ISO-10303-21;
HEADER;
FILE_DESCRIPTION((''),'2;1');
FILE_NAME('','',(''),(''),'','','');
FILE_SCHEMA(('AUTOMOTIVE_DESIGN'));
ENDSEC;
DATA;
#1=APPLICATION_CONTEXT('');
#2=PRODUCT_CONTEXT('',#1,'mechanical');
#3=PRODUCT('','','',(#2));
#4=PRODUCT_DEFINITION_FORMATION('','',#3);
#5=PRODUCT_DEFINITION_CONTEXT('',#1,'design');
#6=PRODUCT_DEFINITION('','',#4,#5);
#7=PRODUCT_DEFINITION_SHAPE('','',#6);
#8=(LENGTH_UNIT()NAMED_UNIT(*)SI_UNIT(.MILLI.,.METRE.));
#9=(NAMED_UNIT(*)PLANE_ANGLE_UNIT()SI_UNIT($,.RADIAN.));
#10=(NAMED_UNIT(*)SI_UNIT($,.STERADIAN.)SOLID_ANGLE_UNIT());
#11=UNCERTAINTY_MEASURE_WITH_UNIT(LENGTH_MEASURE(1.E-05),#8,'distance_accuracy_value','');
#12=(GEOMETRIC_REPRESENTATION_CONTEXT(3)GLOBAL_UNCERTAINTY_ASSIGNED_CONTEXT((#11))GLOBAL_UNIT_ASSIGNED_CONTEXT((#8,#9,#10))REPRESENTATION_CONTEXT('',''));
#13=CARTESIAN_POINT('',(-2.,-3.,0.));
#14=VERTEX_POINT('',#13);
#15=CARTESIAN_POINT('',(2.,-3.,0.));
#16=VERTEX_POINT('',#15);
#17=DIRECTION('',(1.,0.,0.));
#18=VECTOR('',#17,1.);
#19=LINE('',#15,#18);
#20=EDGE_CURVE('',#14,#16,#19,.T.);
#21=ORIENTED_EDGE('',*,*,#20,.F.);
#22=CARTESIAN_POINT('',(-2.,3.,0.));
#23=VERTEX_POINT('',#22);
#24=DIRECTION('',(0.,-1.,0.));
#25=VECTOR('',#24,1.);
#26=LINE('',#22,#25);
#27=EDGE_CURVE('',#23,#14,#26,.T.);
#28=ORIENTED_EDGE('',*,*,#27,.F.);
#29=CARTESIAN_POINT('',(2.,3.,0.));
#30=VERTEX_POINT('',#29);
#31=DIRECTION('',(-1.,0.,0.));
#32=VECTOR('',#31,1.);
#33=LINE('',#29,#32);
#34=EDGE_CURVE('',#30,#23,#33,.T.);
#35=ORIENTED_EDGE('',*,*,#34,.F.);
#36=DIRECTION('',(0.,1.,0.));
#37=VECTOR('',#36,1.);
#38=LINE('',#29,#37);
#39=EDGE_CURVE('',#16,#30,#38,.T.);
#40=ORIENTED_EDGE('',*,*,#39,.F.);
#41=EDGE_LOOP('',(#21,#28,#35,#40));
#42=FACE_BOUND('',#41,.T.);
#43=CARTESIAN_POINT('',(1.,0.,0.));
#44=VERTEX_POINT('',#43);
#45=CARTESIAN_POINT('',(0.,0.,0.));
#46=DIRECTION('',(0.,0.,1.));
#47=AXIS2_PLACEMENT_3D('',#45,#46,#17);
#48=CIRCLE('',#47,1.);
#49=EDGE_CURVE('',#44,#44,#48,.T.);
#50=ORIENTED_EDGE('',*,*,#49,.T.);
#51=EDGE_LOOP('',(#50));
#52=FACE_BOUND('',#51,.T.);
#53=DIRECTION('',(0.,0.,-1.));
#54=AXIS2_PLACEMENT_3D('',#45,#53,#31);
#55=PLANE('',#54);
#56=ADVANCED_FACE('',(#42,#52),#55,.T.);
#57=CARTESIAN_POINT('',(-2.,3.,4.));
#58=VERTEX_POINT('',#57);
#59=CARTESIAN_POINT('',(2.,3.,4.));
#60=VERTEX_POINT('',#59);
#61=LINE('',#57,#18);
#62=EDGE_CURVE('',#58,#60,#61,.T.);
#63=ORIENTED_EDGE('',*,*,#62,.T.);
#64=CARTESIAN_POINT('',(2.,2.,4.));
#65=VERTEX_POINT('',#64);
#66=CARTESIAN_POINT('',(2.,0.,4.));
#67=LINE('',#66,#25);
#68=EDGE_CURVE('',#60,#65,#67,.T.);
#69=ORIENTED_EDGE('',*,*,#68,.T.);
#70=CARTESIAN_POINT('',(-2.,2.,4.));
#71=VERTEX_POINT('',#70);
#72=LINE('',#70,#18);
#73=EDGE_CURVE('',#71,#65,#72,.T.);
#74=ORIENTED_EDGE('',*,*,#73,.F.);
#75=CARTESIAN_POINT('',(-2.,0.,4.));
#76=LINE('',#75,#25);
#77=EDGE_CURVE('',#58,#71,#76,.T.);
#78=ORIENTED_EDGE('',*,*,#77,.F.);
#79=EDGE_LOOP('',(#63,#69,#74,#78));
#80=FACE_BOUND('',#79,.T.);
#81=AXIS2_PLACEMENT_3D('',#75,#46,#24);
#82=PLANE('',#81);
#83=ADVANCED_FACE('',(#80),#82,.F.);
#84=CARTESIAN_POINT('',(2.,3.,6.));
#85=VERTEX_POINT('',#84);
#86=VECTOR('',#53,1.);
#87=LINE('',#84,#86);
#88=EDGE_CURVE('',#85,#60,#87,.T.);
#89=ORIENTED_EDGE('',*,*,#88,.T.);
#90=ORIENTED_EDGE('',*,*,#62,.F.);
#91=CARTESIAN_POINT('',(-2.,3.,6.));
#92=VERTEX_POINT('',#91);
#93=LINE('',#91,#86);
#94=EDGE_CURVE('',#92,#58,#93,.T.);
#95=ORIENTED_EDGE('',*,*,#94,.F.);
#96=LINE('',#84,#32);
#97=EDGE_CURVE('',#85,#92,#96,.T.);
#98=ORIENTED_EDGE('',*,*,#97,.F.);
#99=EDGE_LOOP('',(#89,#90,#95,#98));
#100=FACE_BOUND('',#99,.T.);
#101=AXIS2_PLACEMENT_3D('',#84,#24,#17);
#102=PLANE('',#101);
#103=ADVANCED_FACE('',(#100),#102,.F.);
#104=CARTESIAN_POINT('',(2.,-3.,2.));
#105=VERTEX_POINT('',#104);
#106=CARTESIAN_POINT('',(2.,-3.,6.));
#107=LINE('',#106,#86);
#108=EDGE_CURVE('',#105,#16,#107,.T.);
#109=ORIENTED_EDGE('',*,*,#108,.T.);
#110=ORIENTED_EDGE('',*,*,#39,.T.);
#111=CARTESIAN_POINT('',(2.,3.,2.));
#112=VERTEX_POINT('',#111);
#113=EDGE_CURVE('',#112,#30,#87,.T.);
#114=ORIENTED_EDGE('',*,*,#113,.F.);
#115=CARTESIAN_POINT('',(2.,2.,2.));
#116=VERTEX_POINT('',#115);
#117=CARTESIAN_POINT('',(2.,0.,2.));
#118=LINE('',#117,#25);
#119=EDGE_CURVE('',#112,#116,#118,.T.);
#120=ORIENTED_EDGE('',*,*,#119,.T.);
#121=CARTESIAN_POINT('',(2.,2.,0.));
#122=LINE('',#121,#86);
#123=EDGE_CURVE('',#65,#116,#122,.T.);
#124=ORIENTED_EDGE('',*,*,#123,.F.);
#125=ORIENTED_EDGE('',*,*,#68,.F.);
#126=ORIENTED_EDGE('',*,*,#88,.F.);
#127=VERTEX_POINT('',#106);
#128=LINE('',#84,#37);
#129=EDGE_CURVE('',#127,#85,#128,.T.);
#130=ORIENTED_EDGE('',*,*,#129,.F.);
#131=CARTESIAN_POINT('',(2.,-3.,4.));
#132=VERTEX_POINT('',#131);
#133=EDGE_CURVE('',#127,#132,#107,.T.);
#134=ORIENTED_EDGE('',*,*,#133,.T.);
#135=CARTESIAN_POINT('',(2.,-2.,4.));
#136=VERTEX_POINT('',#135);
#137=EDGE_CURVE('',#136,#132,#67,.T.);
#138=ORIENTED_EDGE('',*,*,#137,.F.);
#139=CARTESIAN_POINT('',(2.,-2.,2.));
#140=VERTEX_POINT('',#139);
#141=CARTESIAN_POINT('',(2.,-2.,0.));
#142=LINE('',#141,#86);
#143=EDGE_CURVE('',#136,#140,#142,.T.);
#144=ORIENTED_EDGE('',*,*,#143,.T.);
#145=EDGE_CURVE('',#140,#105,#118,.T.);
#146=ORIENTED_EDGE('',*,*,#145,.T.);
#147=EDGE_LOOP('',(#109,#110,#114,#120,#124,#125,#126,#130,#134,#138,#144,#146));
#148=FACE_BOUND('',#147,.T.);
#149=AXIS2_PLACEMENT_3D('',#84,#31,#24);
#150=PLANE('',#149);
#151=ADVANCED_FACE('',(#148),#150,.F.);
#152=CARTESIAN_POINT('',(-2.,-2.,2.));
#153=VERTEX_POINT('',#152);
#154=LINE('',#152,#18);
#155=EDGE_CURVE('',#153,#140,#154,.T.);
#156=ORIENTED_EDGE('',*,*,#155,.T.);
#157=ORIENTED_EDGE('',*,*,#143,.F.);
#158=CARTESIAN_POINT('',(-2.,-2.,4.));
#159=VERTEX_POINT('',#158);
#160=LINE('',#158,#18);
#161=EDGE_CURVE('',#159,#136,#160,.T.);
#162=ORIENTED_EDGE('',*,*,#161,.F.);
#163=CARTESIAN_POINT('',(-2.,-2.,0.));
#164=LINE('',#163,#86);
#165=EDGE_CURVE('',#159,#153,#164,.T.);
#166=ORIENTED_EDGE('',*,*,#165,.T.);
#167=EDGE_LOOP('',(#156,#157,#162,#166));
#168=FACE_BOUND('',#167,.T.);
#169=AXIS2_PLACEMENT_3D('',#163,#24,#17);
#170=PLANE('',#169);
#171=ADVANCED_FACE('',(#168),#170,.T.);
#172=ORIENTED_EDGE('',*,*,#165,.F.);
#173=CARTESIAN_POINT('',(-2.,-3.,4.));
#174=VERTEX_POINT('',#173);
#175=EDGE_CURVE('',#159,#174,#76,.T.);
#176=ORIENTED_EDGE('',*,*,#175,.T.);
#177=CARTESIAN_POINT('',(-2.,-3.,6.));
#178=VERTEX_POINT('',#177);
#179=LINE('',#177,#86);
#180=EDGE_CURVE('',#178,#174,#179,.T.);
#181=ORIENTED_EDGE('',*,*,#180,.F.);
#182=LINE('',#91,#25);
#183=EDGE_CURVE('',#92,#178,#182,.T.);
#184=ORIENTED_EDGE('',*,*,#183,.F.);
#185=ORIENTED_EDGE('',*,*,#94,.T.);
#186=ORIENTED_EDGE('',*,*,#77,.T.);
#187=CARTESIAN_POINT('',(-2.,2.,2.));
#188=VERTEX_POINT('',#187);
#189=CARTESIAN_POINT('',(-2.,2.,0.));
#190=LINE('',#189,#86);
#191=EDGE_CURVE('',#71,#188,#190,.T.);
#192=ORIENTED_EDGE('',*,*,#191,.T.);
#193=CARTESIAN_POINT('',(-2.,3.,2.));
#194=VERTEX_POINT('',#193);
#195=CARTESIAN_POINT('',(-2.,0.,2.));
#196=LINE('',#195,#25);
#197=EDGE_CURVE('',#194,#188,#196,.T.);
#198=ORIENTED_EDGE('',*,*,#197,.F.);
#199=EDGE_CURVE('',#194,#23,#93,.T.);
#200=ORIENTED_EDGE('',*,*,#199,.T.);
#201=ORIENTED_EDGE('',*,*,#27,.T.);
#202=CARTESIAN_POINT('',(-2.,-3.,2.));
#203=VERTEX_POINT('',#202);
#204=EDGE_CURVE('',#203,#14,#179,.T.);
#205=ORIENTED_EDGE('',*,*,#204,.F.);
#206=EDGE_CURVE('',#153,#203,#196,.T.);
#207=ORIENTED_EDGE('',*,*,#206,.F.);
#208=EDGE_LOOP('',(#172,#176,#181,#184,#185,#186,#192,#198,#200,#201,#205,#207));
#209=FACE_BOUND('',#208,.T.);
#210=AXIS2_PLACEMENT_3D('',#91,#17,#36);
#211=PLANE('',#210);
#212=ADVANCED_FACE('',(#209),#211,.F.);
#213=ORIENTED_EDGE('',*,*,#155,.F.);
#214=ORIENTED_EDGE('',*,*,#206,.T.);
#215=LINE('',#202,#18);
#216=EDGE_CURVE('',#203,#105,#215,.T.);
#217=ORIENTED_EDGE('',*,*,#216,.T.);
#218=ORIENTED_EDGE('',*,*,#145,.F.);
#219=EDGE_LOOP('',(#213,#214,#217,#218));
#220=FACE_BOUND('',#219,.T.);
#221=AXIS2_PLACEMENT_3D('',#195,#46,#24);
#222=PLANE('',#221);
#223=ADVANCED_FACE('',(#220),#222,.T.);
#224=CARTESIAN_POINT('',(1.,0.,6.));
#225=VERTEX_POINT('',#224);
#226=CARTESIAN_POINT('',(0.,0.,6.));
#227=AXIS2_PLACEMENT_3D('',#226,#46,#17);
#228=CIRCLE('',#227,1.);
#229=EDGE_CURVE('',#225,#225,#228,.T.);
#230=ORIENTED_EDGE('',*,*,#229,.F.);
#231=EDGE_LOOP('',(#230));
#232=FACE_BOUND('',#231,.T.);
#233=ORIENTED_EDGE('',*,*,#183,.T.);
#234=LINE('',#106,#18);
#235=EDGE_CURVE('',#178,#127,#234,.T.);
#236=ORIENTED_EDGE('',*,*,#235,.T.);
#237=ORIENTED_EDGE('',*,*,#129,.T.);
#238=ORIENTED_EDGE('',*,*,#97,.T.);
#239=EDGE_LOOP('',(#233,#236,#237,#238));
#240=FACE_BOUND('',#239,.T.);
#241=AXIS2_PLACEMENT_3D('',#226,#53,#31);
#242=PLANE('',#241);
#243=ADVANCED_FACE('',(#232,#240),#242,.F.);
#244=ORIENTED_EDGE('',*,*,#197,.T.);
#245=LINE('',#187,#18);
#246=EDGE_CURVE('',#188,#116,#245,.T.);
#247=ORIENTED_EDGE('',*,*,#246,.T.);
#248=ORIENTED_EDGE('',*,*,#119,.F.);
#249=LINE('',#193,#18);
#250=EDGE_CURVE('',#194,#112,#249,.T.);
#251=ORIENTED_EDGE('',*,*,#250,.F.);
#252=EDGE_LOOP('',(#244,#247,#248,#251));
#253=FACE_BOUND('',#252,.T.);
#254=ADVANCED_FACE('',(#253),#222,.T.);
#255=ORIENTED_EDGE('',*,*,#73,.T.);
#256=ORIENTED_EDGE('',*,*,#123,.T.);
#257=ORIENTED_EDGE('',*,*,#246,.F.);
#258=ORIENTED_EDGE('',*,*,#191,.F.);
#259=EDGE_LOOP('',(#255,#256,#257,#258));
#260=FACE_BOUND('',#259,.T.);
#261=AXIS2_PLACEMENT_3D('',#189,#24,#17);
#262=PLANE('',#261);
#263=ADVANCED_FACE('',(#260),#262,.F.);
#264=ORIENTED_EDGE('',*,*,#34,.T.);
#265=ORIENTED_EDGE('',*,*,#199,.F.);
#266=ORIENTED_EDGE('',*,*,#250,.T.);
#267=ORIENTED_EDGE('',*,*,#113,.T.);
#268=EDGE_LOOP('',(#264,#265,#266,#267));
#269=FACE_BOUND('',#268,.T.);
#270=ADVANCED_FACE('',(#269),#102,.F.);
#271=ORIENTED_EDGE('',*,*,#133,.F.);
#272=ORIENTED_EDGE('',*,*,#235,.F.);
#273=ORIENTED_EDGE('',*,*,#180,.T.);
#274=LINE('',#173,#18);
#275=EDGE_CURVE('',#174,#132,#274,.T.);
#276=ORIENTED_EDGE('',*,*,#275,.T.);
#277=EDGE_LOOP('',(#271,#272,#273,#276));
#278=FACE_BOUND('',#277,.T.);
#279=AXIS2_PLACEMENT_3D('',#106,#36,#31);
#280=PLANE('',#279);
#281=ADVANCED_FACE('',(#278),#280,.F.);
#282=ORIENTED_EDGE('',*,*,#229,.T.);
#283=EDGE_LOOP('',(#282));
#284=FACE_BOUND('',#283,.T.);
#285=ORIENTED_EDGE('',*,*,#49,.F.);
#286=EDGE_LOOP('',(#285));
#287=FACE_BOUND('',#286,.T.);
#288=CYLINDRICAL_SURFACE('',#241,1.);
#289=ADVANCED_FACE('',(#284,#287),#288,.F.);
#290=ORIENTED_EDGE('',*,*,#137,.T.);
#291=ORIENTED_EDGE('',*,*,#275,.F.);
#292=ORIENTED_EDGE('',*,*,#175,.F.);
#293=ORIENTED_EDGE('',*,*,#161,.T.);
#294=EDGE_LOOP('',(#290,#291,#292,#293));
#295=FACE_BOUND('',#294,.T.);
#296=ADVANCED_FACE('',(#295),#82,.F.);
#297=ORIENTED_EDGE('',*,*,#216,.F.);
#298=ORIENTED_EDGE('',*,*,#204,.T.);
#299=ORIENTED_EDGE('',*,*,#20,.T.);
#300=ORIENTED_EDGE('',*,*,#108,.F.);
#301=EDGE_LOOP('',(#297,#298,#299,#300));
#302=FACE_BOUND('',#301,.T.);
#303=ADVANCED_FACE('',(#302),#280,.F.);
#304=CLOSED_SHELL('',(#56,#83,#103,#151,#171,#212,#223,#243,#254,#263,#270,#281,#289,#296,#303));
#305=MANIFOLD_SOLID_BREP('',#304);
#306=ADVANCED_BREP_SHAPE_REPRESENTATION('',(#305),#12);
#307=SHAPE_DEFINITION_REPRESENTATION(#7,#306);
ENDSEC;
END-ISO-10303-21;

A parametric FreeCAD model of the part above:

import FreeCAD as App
import Part
import Sketcher
from FreeCAD import Vector
Q = App.Units.Quantity


def add_polygon(sketch, points):
    """Adds a closed chain of lines whose ends are joined by coincident constraints."""
    first, n = sketch.GeometryCount, len(points)
    for a, b in zip(points, points[1:] + points[:1]):
        sketch.addGeometry(Part.LineSegment(App.Vector(*a, 0), App.Vector(*b, 0)), False)
    for i in range(n):
        sketch.addConstraint(Sketcher.Constraint("Coincident", first + i, 2, first + (i + 1) % n, 1))

doc = App.newDocument("Part")
body = doc.addObject("PartDesign::Body", "Body")

# Sketch on XY plane
sketch1 = body.newObject("Sketcher::SketchObject", "Sketch")
sketch1.AttachmentSupport = (doc.getObject("XY_Plane"), [""])
sketch1.MapMode = "FlatFace"
add_polygon(sketch1, [(-2, 3), (-2, -3), (2, -3), (2, 3)])  # lines 0-3
sketch1.addGeometry(Part.Circle(Vector(0, 0, 0), Vector(0, 0, 1), 1), False)  # 4
sketch1.addConstraint([
    Sketcher.Constraint("Vertical", 0),
    Sketcher.Constraint("Horizontal", 1),
    Sketcher.Constraint("Vertical", 2),
    Sketcher.Constraint("Horizontal", 3),
    Sketcher.Constraint("Coincident", 4, 3, -1, 1),
    Sketcher.Constraint("Symmetric", 0, 2, 2, 2, -1, 1),
    Sketcher.Constraint("Diameter", 4, Q("2 mm")),
    Sketcher.Constraint("DistanceX", 1, 1, 1, 2, Q("4 mm")),
    Sketcher.Constraint("DistanceY", 0, 2, 0, 1, Q("6 mm")),
])
pad1 = body.newObject("PartDesign::Pad", "Pad")
pad1.Profile = sketch1
pad1.Length = 6

# Sketch on YZ plane
sketch2 = body.newObject("Sketcher::SketchObject", "Sketch001")
sketch2.AttachmentSupport = (doc.getObject("YZ_Plane"), [""])
sketch2.MapMode = "FlatFace"
sketch2.AttachmentOffset = App.Placement(Vector(0, 0, 2), App.Rotation())
add_polygon(sketch2, [(3, 4), (2, 4), (2, 2), (3, 2)])  # lines 0-3
add_polygon(sketch2, [(-2, 4), (-3, 4), (-3, 2), (-2, 2)])  # lines 4-7
sketch2.addConstraint([
    Sketcher.Constraint("Horizontal", 0),
    Sketcher.Constraint("Vertical", 1),
    Sketcher.Constraint("Horizontal", 2),
    Sketcher.Constraint("Vertical", 3),
    Sketcher.Constraint("Horizontal", 4),
    Sketcher.Constraint("Vertical", 5),
    Sketcher.Constraint("Horizontal", 6),
    Sketcher.Constraint("Vertical", 7),
    Sketcher.Constraint("Symmetric", 3, 2, 4, 2, -2),
    Sketcher.Constraint("Symmetric", 1, 2, 6, 2, -2),
    Sketcher.Constraint("DistanceX", 0, 2, 0, 1, Q("1 mm")),
    Sketcher.Constraint("DistanceY", 1, 2, 1, 1, Q("2 mm")),
    Sketcher.Constraint("DistanceX", -1, 1, 0, 2, Q("2 mm")),
    Sketcher.Constraint("DistanceY", -1, 1, 0, 2, Q("4 mm")),
])
pocket1 = body.newObject("PartDesign::Pocket", "Pocket")
pocket1.Profile = sketch2
pocket1.Type = "ThroughAll"

doc.recompute()
